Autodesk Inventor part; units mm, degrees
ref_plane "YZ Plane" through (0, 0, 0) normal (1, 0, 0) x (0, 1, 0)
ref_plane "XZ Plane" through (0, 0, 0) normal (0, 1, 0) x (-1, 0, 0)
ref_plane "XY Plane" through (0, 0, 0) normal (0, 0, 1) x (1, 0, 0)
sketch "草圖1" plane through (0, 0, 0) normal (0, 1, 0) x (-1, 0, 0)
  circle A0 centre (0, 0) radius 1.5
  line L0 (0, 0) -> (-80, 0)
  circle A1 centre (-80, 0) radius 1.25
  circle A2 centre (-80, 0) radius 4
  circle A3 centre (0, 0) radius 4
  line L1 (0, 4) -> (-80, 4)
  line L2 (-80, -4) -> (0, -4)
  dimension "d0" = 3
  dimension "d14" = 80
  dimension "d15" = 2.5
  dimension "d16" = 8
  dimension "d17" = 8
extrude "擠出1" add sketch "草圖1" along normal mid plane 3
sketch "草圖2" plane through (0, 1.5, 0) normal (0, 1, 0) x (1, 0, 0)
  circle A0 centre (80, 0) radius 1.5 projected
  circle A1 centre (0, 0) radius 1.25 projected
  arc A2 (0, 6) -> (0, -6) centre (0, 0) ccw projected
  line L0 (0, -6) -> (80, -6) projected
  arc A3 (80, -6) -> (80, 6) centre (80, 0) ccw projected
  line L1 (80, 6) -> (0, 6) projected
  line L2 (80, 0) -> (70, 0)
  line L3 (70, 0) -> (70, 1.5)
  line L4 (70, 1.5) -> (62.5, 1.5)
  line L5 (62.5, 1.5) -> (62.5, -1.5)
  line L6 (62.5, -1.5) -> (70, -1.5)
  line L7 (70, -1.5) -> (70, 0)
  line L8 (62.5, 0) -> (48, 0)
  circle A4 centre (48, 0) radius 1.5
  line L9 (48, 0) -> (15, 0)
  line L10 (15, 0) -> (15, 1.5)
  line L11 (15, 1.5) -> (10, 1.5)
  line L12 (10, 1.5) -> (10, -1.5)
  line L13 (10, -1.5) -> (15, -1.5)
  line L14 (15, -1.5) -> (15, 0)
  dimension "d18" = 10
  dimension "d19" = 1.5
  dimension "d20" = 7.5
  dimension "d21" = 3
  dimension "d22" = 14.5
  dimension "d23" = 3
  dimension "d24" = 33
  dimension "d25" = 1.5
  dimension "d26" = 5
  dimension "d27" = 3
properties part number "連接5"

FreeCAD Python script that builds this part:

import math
import FreeCAD as App
import Part
import Sketcher
Q = App.Units.Quantity

doc = App.newDocument("Part")
body = doc.addObject("PartDesign::Body", "Body")

sketch1 = body.newObject("Sketcher::SketchObject", "Sketch")
sketch1.AttachmentSupport = (doc.getObject("XZ_Plane"), [""])
sketch1.MapMode = "FlatFace"
sketch1.addGeometry([
    Part.LineSegment(App.Vector(0, 4, 0), App.Vector(80, 4, 0)),
    Part.ArcOfCircle(Part.Circle(App.Vector(80, 0, 0), App.Vector(0, 0, 1), 4), math.radians(-90), math.radians(90)),
    Part.LineSegment(App.Vector(80, -4, 0), App.Vector(0, -4, 0)),
    Part.ArcOfCircle(Part.Circle(App.Vector(0, 0, 0), App.Vector(0, 0, 1), 4), math.radians(90), math.radians(270)),
    Part.Circle(App.Vector(0, 0, 0), App.Vector(0, 0, 1), 1.5),
    Part.Circle(App.Vector(80, 0, 0), App.Vector(0, 0, 1), 1.2),
], False)
sketch1.addConstraint([
    Sketcher.Constraint("Tangent", 0, 2, 1, 2),
    Sketcher.Constraint("Tangent", 1, 1, 2, 1),
    Sketcher.Constraint("Tangent", 2, 2, 3, 2),
    Sketcher.Constraint("Tangent", 3, 1, 0, 1),
    Sketcher.Constraint("Horizontal", 0),
    Sketcher.Constraint("Horizontal", 2),
    Sketcher.Constraint("Coincident", 3, 3, -1, 1),
    Sketcher.Constraint("Coincident", 4, 3, -1, 1),
    Sketcher.Constraint("Coincident", 5, 3, 1, 3),
    Sketcher.Constraint("Diameter", 4, Q("3 mm")),
    Sketcher.Constraint("Radius", 1, Q("4 mm")),
    Sketcher.Constraint("Diameter", 5, Q("2.5 mm")),
    Sketcher.Constraint("DistanceX", 0, 1, 0, 2, Q("80 mm")),
])
pad1 = body.newObject("PartDesign::Pad", "Pad")
pad1.Profile = sketch1
pad1.Length = 3
pad1.Midplane = True

doc.recompute()
